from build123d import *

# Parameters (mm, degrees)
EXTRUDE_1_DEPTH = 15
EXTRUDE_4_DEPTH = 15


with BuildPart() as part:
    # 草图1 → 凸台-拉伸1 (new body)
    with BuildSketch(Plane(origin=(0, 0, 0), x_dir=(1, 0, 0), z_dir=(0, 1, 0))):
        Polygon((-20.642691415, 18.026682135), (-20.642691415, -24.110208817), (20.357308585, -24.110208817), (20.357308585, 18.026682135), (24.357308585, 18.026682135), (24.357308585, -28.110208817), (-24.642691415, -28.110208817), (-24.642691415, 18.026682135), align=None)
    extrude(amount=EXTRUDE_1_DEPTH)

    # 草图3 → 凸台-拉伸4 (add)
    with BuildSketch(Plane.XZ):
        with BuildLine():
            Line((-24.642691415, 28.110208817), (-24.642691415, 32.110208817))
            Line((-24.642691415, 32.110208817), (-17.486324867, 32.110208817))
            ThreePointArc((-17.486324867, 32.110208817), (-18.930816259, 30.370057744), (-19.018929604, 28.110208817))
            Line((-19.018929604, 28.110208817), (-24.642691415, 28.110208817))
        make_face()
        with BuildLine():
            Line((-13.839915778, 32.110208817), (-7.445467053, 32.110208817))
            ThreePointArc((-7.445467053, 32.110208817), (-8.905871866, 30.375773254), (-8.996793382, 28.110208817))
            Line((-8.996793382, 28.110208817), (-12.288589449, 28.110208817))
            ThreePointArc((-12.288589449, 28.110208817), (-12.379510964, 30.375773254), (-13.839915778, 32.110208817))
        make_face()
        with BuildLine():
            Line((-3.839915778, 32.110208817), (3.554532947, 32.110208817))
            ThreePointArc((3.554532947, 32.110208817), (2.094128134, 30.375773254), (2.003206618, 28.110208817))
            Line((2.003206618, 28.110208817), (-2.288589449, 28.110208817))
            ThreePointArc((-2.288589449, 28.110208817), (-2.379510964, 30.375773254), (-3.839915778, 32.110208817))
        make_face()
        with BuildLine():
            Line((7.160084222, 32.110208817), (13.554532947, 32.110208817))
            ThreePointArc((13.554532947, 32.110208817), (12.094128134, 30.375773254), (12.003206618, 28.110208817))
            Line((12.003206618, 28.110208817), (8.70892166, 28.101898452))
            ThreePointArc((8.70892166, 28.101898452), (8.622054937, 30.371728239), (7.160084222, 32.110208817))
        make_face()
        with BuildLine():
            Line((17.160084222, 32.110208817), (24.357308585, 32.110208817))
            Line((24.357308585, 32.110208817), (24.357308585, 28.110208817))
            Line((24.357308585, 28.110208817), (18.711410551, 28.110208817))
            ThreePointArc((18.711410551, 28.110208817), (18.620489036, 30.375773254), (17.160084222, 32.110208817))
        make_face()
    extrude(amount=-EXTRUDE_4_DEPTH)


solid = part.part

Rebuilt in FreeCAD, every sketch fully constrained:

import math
import FreeCAD as App
import Part
import Sketcher
Q = App.Units.Quantity


def add_polygon(sketch, points):
    """Adds a closed chain of lines whose ends are joined by coincident constraints."""
    first, n = sketch.GeometryCount, len(points)
    for a, b in zip(points, points[1:] + points[:1]):
        sketch.addGeometry(Part.LineSegment(App.Vector(*a, 0), App.Vector(*b, 0)), False)
    for i in range(n):
        sketch.addConstraint(Sketcher.Constraint("Coincident", first + i, 2, first + (i + 1) % n, 1))

doc = App.newDocument("Part")
params = doc.addObject("Spreadsheet::Sheet", "Params")
for row, (alias, value) in enumerate([
    ("sketch1_width", "4 mm"),
    ("sketch1_width2", "49 mm"),
    ("pad1_length", "15 mm"),
    ("sketch2_radius", "3.5 mm"),
    ("sketch2_height", "4 mm"),
    ("pad2_length", "15 mm"),
], start=1):
    params.set(f"A{row}", alias)
    params.set(f"B{row}", "=" + value)
    params.setAlias(f"B{row}", alias)

body = doc.addObject("PartDesign::Body", "Body")

# Sketch on XZ plane
sketch1 = body.newObject("Sketcher::SketchObject", "Sketch")
sketch1.AttachmentSupport = (doc.getObject("XZ_Plane"), [""])
sketch1.MapMode = "FlatFace"
add_polygon(sketch1, [(-20.6, 24.1), (-20.6, -18), (-24.6, -18), (-24.6, 28.1), (24.4, 28.1), (24.4, -18), (20.4, -18), (20.4, 24.1)])  # lines 0-7
sketch1.addConstraint(Sketcher.Constraint("Vertical", 0))
sketch1.addConstraint(Sketcher.Constraint("Horizontal", 1))
sketch1.addConstraint(Sketcher.Constraint("Vertical", 2))
sketch1.addConstraint(Sketcher.Constraint("Horizontal", 3))
sketch1.addConstraint(Sketcher.Constraint("Vertical", 4))
sketch1.addConstraint(Sketcher.Constraint("Horizontal", 5))
sketch1.addConstraint(Sketcher.Constraint("Vertical", 6))
sketch1.addConstraint(Sketcher.Constraint("Horizontal", 7))
sketch1.addConstraint(Sketcher.Constraint("Horizontal", 1, 2, 4, 2))
sketch1.addConstraint(Sketcher.Constraint("Equal", 1, 5))
sketch1.addConstraint(Sketcher.Constraint("DistanceX", 1, 2, 1, 1, Q("4 mm")))
sketch1.addConstraint(Sketcher.Constraint("DistanceX", 3, 1, 3, 2, Q("49 mm")))
sketch1.addConstraint(Sketcher.Constraint("DistanceY", 6, 2, 3, 2, Q("4 mm")))
sketch1.addConstraint(Sketcher.Constraint("DistanceY", 0, 2, 0, 1, Q("42.136891 mm")))
sketch1.addConstraint(Sketcher.Constraint("DistanceX", 0, 2, -1, 1, Q("20.642691 mm")))
sketch1.addConstraint(Sketcher.Constraint("DistanceY", -1, 1, 2, 2, Q("28.110209 mm")))
sketch1.setExpression("Constraints[18]", "Params.sketch1_width")
sketch1.setExpression("Constraints[19]", "Params.sketch1_width2")
pad1 = body.newObject("PartDesign::Pad", "Pad")
pad1.Profile = sketch1
pad1.setExpression("Length", "Params.pad1_length")
pad1.Reversed = True

# Sketch on XZ plane
sketch2 = body.newObject("Sketcher::SketchObject", "Sketch001")
sketch2.AttachmentSupport = (doc.getObject("XZ_Plane"), [""])
sketch2.MapMode = "FlatFace"
sketch2.addGeometry(Part.LineSegment(App.Vector(-24.6, 32.1, 0), App.Vector(-24.6, 28.1, 0)), False)
sketch2.addGeometry(Part.LineSegment(App.Vector(-24.6, 28.1, 0), App.Vector(-19, 28.1, 0)), False)
sketch2.addGeometry(Part.ArcOfCircle(Part.Circle(App.Vector(-15.6, 29.1, 0), App.Vector(0, 0, 1), 3.5), math.radians(122), math.radians(196)), False)
sketch2.addGeometry(Part.LineSegment(App.Vector(-17.5, 32.1, 0), App.Vector(-24.6, 32.1, 0)), False)
sketch2.addGeometry(Part.LineSegment(App.Vector(-7.4, 32.1, 0), App.Vector(-13.8, 32.1, 0)), False)
sketch2.addGeometry(Part.ArcOfCircle(Part.Circle(App.Vector(-15.6, 29.1, 0), App.Vector(0, 0, 1), 3.5), math.radians(-17), math.radians(59)), False)
sketch2.addGeometry(Part.LineSegment(App.Vector(-12.3, 28.1, 0), App.Vector(-9, 28.1, 0)), False)
sketch2.addGeometry(Part.ArcOfCircle(Part.Circle(App.Vector(-5.6, 29.1, 0), App.Vector(0, 0, 1), 3.5), math.radians(121), math.radians(197)), False)
sketch2.addGeometry(Part.LineSegment(App.Vector(3.6, 32.1, 0), App.Vector(-3.8, 32.1, 0)), False)
sketch2.addGeometry(Part.ArcOfCircle(Part.Circle(App.Vector(-5.6, 29.1, 0), App.Vector(0, 0, 1), 3.5), math.radians(-17), math.radians(59)), False)
sketch2.addGeometry(Part.LineSegment(App.Vector(-2.3, 28.1, 0), App.Vector(2, 28.1, 0)), False)
sketch2.addGeometry(Part.ArcOfCircle(Part.Circle(App.Vector(5.4, 29.1, 0), App.Vector(0, 0, 1), 3.5), math.radians(121), math.radians(197)), False)
sketch2.addGeometry(Part.LineSegment(App.Vector(13.6, 32.1, 0), App.Vector(7.2, 32.1, 0)), False)
sketch2.addGeometry(Part.ArcOfCircle(Part.Circle(App.Vector(5.4, 29.1, 0), App.Vector(0, 0, 1), 3.5), math.radians(-17), math.radians(59)), False)
sketch2.addGeometry(Part.LineSegment(App.Vector(8.7, 28.1, 0), App.Vector(12, 28.1, 0)), False)
sketch2.addGeometry(Part.ArcOfCircle(Part.Circle(App.Vector(15.4, 29.1, 0), App.Vector(0, 0, 1), 3.5), math.radians(121), math.radians(197)), False)
sketch2.addGeometry(Part.LineSegment(App.Vector(24.4, 32.1, 0), App.Vector(17.2, 32.1, 0)), False)
sketch2.addGeometry(Part.ArcOfCircle(Part.Circle(App.Vector(15.4, 29.1, 0), App.Vector(0, 0, 1), 3.5), math.radians(-17), math.radians(59)), False)
sketch2.addGeometry(Part.LineSegment(App.Vector(18.7, 28.1, 0), App.Vector(24.4, 28.1, 0)), False)
sketch2.addGeometry(Part.LineSegment(App.Vector(24.4, 28.1, 0), App.Vector(24.4, 32.1, 0)), False)
sketch2.addConstraint(Sketcher.Constraint("Coincident", 0, 2, 1, 1))
sketch2.addConstraint(Sketcher.Constraint("Coincident", 1, 2, 2, 2))
sketch2.addConstraint(Sketcher.Constraint("Coincident", 2, 1, 3, 1))
sketch2.addConstraint(Sketcher.Constraint("Coincident", 3, 2, 0, 1))
sketch2.addConstraint(Sketcher.Constraint("Coincident", 4, 2, 5, 2))
sketch2.addConstraint(Sketcher.Constraint("Coincident", 5, 1, 6, 1))
sketch2.addConstraint(Sketcher.Constraint("Coincident", 6, 2, 7, 2))
sketch2.addConstraint(Sketcher.Constraint("Coincident", 7, 1, 4, 1))
sketch2.addConstraint(Sketcher.Constraint("Coincident", 8, 2, 9, 2))
sketch2.addConstraint(Sketcher.Constraint("Coincident", 9, 1, 10, 1))
sketch2.addConstraint(Sketcher.Constraint("Coincident", 10, 2, 11, 2))
sketch2.addConstraint(Sketcher.Constraint("Coincident", 11, 1, 8, 1))
sketch2.addConstraint(Sketcher.Constraint("Coincident", 12, 2, 13, 2))
sketch2.addConstraint(Sketcher.Constraint("Coincident", 13, 1, 14, 1))
sketch2.addConstraint(Sketcher.Constraint("Coincident", 14, 2, 15, 2))
sketch2.addConstraint(Sketcher.Constraint("Coincident", 15, 1, 12, 1))
sketch2.addConstraint(Sketcher.Constraint("Coincident", 16, 2, 17, 2))
sketch2.addConstraint(Sketcher.Constraint("Coincident", 17, 1, 18, 1))
sketch2.addConstraint(Sketcher.Constraint("Coincident", 18, 2, 19, 1))
sketch2.addConstraint(Sketcher.Constraint("Coincident", 19, 2, 16, 1))
sketch2.addConstraint(Sketcher.Constraint("Vertical", 0))
sketch2.addConstraint(Sketcher.Constraint("Horizontal", 1))
sketch2.addConstraint(Sketcher.Constraint("Horizontal", 3))
sketch2.addConstraint(Sketcher.Constraint("Horizontal", 4))
sketch2.addConstraint(Sketcher.Constraint("Horizontal", 6))
sketch2.addConstraint(Sketcher.Constraint("Horizontal", 8))
sketch2.addConstraint(Sketcher.Constraint("Horizontal", 10))
sketch2.addConstraint(Sketcher.Constraint("Horizontal", 12))
sketch2.addConstraint(Sketcher.Constraint("Horizontal", 16))
sketch2.addConstraint(Sketcher.Constraint("Horizontal", 18))
sketch2.addConstraint(Sketcher.Constraint("Vertical", 19))
sketch2.addConstraint(Sketcher.Constraint("Coincident", 5, 3, 2, 3))
sketch2.addConstraint(Sketcher.Constraint("Coincident", 9, 3, 7, 3))
sketch2.addConstraint(Sketcher.Constraint("Coincident", 13, 3, 11, 3))
sketch2.addConstraint(Sketcher.Constraint("Coincident", 17, 3, 15, 3))
sketch2.addConstraint(Sketcher.Constraint("Equal", 5, 7))
sketch2.addConstraint(Sketcher.Constraint("Equal", 7, 9))
sketch2.addConstraint(Sketcher.Constraint("Equal", 9, 11))
sketch2.addConstraint(Sketcher.Constraint("Equal", 11, 13))
sketch2.addConstraint(Sketcher.Constraint("Equal", 13, 15))
sketch2.addConstraint(Sketcher.Constraint("Equal", 15, 17))
sketch2.addConstraint(Sketcher.Constraint("Horizontal", 5, 3, 7, 3))
sketch2.addConstraint(Sketcher.Constraint("Horizontal", 9, 3, 11, 3))
sketch2.addConstraint(Sketcher.Constraint("Horizontal", 13, 3, 15, 3))
sketch2.addConstraint(Sketcher.Constraint("Horizontal", 3, 2, 4, 2))
sketch2.addConstraint(Sketcher.Constraint("Horizontal", 1, 2, 5, 1))
sketch2.addConstraint(Sketcher.Constraint("Horizontal", 7, 1, 8, 2))
sketch2.addConstraint(Sketcher.Constraint("Horizontal", 6, 2, 9, 1))
sketch2.addConstraint(Sketcher.Constraint("Horizontal", 11, 1, 12, 2))
sketch2.addConstraint(Sketcher.Constraint("Horizontal", 10, 2, 14, 2))
sketch2.addConstraint(Sketcher.Constraint("Horizontal", 15, 1, 16, 2))
sketch2.addConstraint(Sketcher.Constraint("Horizontal", 14, 2, 17, 1))
sketch2.addConstraint(Sketcher.Constraint("Equal", 4, 12))
sketch2.addConstraint(Sketcher.Constraint("Radius", 5, Q("3.5 mm")))
sketch2.addConstraint(Sketcher.Constraint("DistanceY", 0, 2, 0, 1, Q("4 mm")))
sketch2.addConstraint(Sketcher.Constraint("DistanceX", 5, 3, 7, 3, Q("10 mm")))
sketch2.addConstraint(Sketcher.Constraint("DistanceX", 7, 3, 11, 3, Q("11 mm")))
sketch2.addConstraint(Sketcher.Constraint("DistanceX", 0, 2, 2, 3, Q("9 mm")))
sketch2.addConstraint(Sketcher.Constraint("DistanceY", 0, 2, 2, 3, Q("1 mm")))
sketch2.addConstraint(Sketcher.Constraint("DistanceX", 15, 3, 18, 2, Q("9 mm")))
sketch2.addConstraint(Sketcher.Constraint("Radius", 2, Q("3.521219 mm")))
sketch2.addConstraint(Sketcher.Constraint("DistanceY", -1, 1, 13, 1, Q("28.101898 mm")))
sketch2.addConstraint(Sketcher.Constraint("DistanceX", 2, 3, -1, 1, Q("15.642691 mm")))
sketch2.addConstraint(Sketcher.Constraint("DistanceY", -1, 1, 2, 3, Q("29.110209 mm")))
sketch2.setExpression("Constraints[53]", "Params.sketch2_radius")
sketch2.setExpression("Constraints[54]", "Params.sketch2_height")
pad2 = body.newObject("PartDesign::Pad", "Pad001")
pad2.Profile = sketch2
pad2.setExpression("Length", "Params.pad2_length")
pad2.Reversed = True

doc.recompute()
